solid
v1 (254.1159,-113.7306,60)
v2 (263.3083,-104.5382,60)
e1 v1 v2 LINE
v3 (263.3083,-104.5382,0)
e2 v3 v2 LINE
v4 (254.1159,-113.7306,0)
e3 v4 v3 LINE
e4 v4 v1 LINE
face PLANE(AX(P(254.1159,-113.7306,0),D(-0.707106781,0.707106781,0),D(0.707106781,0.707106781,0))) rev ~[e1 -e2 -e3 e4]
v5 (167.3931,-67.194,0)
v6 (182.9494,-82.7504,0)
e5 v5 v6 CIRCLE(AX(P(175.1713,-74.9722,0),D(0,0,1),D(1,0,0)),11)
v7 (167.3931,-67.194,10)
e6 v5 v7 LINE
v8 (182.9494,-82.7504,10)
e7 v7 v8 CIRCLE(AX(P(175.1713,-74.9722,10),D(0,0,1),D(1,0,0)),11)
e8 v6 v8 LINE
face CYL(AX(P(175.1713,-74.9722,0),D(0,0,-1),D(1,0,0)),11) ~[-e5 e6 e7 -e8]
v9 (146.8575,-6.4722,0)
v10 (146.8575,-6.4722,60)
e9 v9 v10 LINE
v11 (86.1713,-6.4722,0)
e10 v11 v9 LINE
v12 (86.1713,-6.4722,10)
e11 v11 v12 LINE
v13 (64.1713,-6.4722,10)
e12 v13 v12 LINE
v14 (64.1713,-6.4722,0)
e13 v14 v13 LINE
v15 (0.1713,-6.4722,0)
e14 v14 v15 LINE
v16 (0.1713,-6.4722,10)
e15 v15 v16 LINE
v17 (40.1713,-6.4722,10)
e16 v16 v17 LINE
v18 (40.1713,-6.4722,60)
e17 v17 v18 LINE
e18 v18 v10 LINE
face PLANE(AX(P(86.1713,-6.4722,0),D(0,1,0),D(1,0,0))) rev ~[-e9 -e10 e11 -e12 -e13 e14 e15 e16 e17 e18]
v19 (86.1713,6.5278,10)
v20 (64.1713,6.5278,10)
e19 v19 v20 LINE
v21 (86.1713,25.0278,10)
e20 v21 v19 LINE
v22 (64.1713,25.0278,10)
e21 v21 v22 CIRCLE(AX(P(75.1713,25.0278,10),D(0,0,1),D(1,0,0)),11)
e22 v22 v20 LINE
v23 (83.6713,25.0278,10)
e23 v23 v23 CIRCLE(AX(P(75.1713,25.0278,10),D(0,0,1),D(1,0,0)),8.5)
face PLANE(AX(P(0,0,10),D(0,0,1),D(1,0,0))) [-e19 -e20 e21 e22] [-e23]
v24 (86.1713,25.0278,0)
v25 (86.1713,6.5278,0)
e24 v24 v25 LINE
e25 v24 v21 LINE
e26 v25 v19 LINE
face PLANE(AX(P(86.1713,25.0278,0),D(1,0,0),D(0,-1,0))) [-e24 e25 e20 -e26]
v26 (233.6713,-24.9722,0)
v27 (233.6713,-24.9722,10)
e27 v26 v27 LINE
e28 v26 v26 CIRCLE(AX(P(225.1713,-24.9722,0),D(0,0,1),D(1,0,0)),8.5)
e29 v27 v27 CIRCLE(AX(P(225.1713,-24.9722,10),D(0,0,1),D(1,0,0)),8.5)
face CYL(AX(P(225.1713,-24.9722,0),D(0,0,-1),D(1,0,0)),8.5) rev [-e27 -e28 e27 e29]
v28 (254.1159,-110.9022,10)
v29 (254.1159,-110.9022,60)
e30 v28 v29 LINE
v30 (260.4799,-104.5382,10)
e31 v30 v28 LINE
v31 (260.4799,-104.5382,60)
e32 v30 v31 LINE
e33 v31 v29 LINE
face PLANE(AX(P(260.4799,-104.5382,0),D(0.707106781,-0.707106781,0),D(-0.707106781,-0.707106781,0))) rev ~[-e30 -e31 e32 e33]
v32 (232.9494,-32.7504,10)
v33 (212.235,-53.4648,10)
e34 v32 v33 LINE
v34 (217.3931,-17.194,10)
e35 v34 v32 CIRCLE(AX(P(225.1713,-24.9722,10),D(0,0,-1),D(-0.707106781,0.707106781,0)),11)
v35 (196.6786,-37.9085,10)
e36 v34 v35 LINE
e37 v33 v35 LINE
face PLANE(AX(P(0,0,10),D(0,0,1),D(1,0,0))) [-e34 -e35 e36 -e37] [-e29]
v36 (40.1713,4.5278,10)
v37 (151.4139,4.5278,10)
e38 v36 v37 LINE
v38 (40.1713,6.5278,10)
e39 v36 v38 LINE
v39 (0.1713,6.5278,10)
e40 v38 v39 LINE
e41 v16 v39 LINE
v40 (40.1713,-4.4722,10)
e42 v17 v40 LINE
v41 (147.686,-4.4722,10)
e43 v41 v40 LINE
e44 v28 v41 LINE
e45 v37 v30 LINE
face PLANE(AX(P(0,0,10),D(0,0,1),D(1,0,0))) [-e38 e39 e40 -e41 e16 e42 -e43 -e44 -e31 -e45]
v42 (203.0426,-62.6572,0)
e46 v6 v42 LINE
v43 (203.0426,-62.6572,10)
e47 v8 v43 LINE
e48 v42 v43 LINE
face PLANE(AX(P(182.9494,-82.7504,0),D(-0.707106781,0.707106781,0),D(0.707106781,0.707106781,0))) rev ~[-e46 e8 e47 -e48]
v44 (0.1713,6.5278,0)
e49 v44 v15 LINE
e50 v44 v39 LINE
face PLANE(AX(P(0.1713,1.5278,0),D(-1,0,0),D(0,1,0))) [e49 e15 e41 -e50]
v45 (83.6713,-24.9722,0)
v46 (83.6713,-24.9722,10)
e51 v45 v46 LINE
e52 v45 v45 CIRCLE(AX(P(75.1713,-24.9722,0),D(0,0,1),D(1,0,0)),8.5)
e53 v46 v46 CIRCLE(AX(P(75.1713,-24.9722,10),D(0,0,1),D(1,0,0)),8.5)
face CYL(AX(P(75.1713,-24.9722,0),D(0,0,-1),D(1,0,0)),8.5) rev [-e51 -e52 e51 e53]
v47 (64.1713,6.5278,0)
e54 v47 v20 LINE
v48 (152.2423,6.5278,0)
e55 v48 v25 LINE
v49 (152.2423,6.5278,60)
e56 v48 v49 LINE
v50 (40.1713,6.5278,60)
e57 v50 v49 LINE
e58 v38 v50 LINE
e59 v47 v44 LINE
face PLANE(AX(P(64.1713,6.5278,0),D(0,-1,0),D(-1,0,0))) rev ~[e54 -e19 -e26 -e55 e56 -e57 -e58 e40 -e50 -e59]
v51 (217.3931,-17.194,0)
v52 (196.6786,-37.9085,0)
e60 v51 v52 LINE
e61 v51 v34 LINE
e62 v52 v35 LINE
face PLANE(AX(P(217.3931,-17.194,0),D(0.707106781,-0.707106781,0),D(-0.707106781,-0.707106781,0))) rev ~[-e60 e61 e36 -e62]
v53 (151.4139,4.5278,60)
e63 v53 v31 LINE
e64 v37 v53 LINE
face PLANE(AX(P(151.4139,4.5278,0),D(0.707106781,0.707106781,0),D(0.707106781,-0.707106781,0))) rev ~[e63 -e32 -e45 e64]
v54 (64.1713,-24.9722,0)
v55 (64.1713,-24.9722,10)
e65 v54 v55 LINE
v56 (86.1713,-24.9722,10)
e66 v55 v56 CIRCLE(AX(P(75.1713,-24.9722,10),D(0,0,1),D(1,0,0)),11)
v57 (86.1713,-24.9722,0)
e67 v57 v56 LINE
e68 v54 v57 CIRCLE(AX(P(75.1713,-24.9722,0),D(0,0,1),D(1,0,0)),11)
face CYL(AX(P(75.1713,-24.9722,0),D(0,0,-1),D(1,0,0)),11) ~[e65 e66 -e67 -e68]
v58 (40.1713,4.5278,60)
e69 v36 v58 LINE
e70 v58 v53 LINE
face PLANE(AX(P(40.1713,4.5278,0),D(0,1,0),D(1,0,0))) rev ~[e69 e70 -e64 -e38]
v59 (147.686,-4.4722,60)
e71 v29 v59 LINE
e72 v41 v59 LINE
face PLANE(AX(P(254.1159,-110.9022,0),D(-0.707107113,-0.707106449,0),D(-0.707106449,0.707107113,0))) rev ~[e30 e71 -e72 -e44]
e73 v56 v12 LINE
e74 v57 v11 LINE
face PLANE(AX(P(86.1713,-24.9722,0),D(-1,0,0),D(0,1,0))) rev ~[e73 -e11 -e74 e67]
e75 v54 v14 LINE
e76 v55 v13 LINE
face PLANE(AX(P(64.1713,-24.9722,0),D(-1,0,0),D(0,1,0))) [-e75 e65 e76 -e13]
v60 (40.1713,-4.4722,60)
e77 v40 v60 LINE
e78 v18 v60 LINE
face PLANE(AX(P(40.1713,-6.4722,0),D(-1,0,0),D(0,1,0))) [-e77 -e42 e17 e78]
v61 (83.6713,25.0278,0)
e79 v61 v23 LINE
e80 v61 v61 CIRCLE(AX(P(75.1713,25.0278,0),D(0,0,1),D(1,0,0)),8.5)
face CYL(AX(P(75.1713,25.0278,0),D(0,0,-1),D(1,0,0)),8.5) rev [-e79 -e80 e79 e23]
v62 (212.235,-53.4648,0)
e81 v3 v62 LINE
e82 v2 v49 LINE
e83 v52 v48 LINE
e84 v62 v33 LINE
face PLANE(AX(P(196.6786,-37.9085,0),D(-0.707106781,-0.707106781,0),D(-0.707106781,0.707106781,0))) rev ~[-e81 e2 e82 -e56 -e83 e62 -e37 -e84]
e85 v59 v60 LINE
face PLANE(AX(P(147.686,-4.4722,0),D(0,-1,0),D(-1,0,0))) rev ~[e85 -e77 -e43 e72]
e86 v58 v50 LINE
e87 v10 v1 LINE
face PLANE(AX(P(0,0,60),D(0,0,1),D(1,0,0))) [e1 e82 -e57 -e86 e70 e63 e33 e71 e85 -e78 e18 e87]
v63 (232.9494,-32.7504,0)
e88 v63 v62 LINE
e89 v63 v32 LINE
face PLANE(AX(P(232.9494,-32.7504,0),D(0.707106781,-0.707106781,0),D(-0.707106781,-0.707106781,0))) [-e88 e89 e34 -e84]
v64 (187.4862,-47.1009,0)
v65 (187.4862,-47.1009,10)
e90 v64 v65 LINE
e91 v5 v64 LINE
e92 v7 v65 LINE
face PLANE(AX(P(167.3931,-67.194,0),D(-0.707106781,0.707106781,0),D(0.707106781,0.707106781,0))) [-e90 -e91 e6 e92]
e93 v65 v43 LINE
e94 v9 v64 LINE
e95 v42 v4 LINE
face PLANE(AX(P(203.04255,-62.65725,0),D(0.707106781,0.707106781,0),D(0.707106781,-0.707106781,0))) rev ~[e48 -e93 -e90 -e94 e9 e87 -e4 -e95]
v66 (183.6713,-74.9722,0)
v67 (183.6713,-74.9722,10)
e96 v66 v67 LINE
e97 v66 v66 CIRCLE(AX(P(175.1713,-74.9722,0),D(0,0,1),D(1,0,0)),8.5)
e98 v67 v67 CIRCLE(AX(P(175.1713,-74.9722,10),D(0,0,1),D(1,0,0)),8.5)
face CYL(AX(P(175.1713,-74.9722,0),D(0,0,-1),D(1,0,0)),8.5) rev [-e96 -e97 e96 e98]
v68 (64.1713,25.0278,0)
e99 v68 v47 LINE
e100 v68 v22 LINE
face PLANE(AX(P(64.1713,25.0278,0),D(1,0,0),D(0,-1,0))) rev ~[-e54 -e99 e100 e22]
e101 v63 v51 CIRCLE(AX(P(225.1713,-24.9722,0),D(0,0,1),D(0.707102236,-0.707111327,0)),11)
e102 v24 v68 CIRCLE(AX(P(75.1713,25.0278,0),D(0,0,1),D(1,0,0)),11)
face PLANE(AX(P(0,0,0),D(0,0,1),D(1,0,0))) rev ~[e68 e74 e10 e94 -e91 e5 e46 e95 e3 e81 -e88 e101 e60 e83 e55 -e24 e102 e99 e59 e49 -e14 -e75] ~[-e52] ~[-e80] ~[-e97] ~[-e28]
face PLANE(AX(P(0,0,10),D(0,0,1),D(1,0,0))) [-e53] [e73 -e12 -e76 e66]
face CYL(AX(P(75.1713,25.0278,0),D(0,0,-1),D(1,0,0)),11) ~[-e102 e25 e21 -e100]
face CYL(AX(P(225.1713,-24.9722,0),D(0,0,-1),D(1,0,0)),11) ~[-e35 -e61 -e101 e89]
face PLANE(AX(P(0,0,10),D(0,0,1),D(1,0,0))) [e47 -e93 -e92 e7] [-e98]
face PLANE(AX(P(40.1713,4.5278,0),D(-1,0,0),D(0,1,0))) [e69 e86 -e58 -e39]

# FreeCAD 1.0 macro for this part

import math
import FreeCAD as App
import Part
import Sketcher
from FreeCAD import Vector
Q = App.Units.Quantity


def add_polygon(sketch, points):
    """Adds a closed chain of lines whose ends are joined by coincident constraints."""
    first, n = sketch.GeometryCount, len(points)
    for a, b in zip(points, points[1:] + points[:1]):
        sketch.addGeometry(Part.LineSegment(App.Vector(*a, 0), App.Vector(*b, 0)), False)
    for i in range(n):
        sketch.addConstraint(Sketcher.Constraint("Coincident", first + i, 2, first + (i + 1) % n, 1))

doc = App.newDocument("Part")
body = doc.addObject("PartDesign::Body", "Body")

# Sketch on XY plane
sketch1 = body.newObject("Sketcher::SketchObject", "Sketch")
sketch1.AttachmentSupport = (doc.getObject("XY_Plane"), [""])
sketch1.MapMode = "FlatFace"
add_polygon(sketch1, [(152.2423, 6.5278), (40.1713, 6.5278), (40.1713, 4.5278), (151.4139, 4.5278), (260.4799, -104.5382), (254.1159, -110.9022), (147.686, -4.4722), (40.1713, -4.4722), (40.1713, -6.4722), (146.8575, -6.4722), (254.1159, -113.7306), (263.3083, -104.5382)])  # lines 0-11
sketch1.addConstraint([
    Sketcher.Constraint("Horizontal", 0),
    Sketcher.Constraint("Vertical", 1),
    Sketcher.Constraint("Horizontal", 2),
    Sketcher.Constraint("Horizontal", 6),
    Sketcher.Constraint("Vertical", 7),
    Sketcher.Constraint("Horizontal", 8),
    Sketcher.Constraint("Perpendicular", 3, 4),
    Sketcher.Constraint("Perpendicular", 4, 5),
    Sketcher.Constraint("Parallel", 5, 9),
    Sketcher.Constraint("Perpendicular", 9, 10),
    Sketcher.Constraint("Perpendicular", 10, 11),
    Sketcher.Constraint("Horizontal", 3, 2, 10, 2),
    Sketcher.Constraint("Vertical", 1, 2, 6, 2),
    Sketcher.Constraint("Vertical", 4, 2, 9, 2),
    Sketcher.Constraint("Equal", 1, 7),
    Sketcher.Constraint("DistanceY", 1, 2, 1, 1, 2.0),
    Sketcher.Constraint("Angle", 3, Q("-45 deg")),
    Sketcher.Constraint("Distance", 4, 9.0),
    Sketcher.Constraint("Distance", 10, 13.0),
    Sketcher.Constraint("DistanceY", 5, 2, 2, 2, 9.0),
    Sketcher.Constraint("DistanceX", 0, 2, 0, 1, 112.071),
    Sketcher.Constraint("DistanceX", -1, 1, 3, 2, 260.48),
    Sketcher.Constraint("DistanceY", 4, 2, 2, 2, 115.43),
    Sketcher.Constraint("DistanceY", -1, 1, 0, 2, 6.5278),
])
pad1 = body.newObject("PartDesign::Pad", "Pad")
pad1.Profile = sketch1
pad1.Length = 60

# Sketch on XY plane
sketch2 = body.newObject("Sketcher::SketchObject", "Sketch001")
sketch2.AttachmentSupport = (doc.getObject("XY_Plane"), [""])
sketch2.MapMode = "FlatFace"
add_polygon(sketch2, [(0.1713, 6.5278), (0.1713, -6.4722), (40.1713, -6.4722), (40.1713, -4.4722), (147.686, -4.4722), (254.1159, -110.9022), (260.4799, -104.5382), (151.4139, 4.5278), (40.1713, 4.5278), (40.1713, 6.5278)])  # lines 0-9
sketch2.addGeometry(Part.LineSegment(Vector(64.1713, 25.0278, 0), Vector(64.1713, 6.5278, 0)), False)  # 10
sketch2.addGeometry(Part.LineSegment(Vector(64.1713, 6.5278, 0), Vector(86.1713, 6.5278, 0)), False)  # 11
sketch2.addGeometry(Part.LineSegment(Vector(86.1713, 6.5278, 0), Vector(86.1713, 25.0278, 0)), False)  # 12
sketch2.addGeometry(Part.ArcOfCircle(Part.Circle(Vector(75.1713, 25.0278, 0), Vector(0, 0, 1), 11), math.radians(0), math.radians(180)), False)  # 13
sketch2.addGeometry(Part.Circle(Vector(75.1713, 25.0278, 0), Vector(0, 0, 1), 8.5), False)  # 14
sketch2.addGeometry(Part.LineSegment(Vector(86.1713, -6.4722, 0), Vector(64.1713, -6.4722, 0)), False)  # 15
sketch2.addGeometry(Part.LineSegment(Vector(64.1713, -6.4722, 0), Vector(64.1713, -24.9722, 0)), False)  # 16
sketch2.addGeometry(Part.ArcOfCircle(Part.Circle(Vector(75.1713, -24.9722, 0), Vector(0, 0, 1), 11), math.radians(180), math.radians(360)), False)  # 17
sketch2.addGeometry(Part.LineSegment(Vector(86.1713, -24.9722, 0), Vector(86.1713, -6.4722, 0)), False)  # 18
sketch2.addGeometry(Part.Circle(Vector(75.1713, -24.9722, 0), Vector(0, 0, 1), 8.5), False)  # 19
sketch2.addGeometry(Part.LineSegment(Vector(217.3931, -17.194, 0), Vector(196.6786, -37.9085, 0)), False)  # 20
sketch2.addGeometry(Part.LineSegment(Vector(196.6786, -37.9085, 0), Vector(212.23495, -53.46485, 0)), False)  # 21
sketch2.addGeometry(Part.LineSegment(Vector(212.235, -53.4648, 0), Vector(232.9494, -32.7504, 0)), False)  # 22
sketch2.addGeometry(Part.ArcOfCircle(Part.Circle(Vector(225.1713, -24.9722, 0), Vector(0, 0, 1), 11), math.radians(-45.000368), math.radians(135)), False)  # 23
sketch2.addGeometry(Part.Circle(Vector(225.1713, -24.9722, 0), Vector(0, 0, 1), 8.5), False)  # 24
sketch2.addGeometry(Part.LineSegment(Vector(203.04255, -62.65725, 0), Vector(187.4862, -47.1009, 0)), False)  # 25
sketch2.addGeometry(Part.LineSegment(Vector(187.4862, -47.1009, 0), Vector(167.3931, -67.194, 0)), False)  # 26
sketch2.addGeometry(Part.ArcOfCircle(Part.Circle(Vector(175.1713, -74.9722, 0), Vector(0, 0, 1), 11), math.radians(135), math.radians(314.999632)), False)  # 27
sketch2.addGeometry(Part.LineSegment(Vector(182.9494, -82.7504, 0), Vector(203.0426, -62.6572, 0)), False)  # 28
sketch2.addGeometry(Part.Circle(Vector(175.1713, -74.9722, 0), Vector(0, 0, 1), 8.5), False)  # 29
sketch2.addConstraint([
    Sketcher.Constraint("Coincident", 10, 2, 11, 1),
    Sketcher.Constraint("Coincident", 11, 2, 12, 1),
    Sketcher.Constraint("Tangent", 12, 2, 13, 1),
    Sketcher.Constraint("Tangent", 13, 2, 10, 1),
    Sketcher.Constraint("Coincident", 15, 2, 16, 1),
    Sketcher.Constraint("Tangent", 16, 2, 17, 1),
    Sketcher.Constraint("Tangent", 17, 2, 18, 1),
    Sketcher.Constraint("Coincident", 18, 2, 15, 1),
    Sketcher.Constraint("Coincident", 20, 2, 21, 1),
    Sketcher.Constraint("Coincident", 21, 2, 22, 1),
    Sketcher.Constraint("Tangent", 22, 2, 23, 1),
    Sketcher.Constraint("Tangent", 23, 2, 20, 1),
    Sketcher.Constraint("Coincident", 25, 2, 26, 1),
    Sketcher.Constraint("Tangent", 26, 2, 27, 1),
    Sketcher.Constraint("Tangent", 27, 2, 28, 1),
    Sketcher.Constraint("Coincident", 28, 2, 25, 1),
    Sketcher.Constraint("Vertical", 0),
    Sketcher.Constraint("Horizontal", 1),
    Sketcher.Constraint("Vertical", 2),
    Sketcher.Constraint("Horizontal", 3),
    Sketcher.Constraint("Horizontal", 7),
    Sketcher.Constraint("Vertical", 8),
    Sketcher.Constraint("Horizontal", 9),
    Sketcher.Constraint("Vertical", 10),
    Sketcher.Constraint("Horizontal", 11),
    Sketcher.Constraint("Vertical", 12),
    Sketcher.Constraint("Horizontal", 15),
    Sketcher.Constraint("Vertical", 16),
    Sketcher.Constraint("Vertical", 18),
    Sketcher.Constraint("Coincident", 14, 3, 13, 3),
    Sketcher.Constraint("Coincident", 19, 3, 17, 3),
    Sketcher.Constraint("Coincident", 24, 3, 23, 3),
    Sketcher.Constraint("Coincident", 29, 3, 27, 3),
    Sketcher.Constraint("Equal", 13, 17),
    Sketcher.Constraint("Equal", 14, 19),
    Sketcher.Constraint("Equal", 17, 23),
    Sketcher.Constraint("Equal", 19, 24),
    Sketcher.Constraint("Equal", 23, 27),
    Sketcher.Constraint("Equal", 24, 29),
    Sketcher.Constraint("Perpendicular", 4, 5),
    Sketcher.Constraint("Perpendicular", 5, 6),
    Sketcher.Constraint("Perpendicular", 6, 20),
    Sketcher.Constraint("Perpendicular", 20, 21),
    Sketcher.Constraint("Perpendicular", 21, 22),
    Sketcher.Constraint("Perpendicular", 22, 25),
    Sketcher.Constraint("Perpendicular", 25, 26),
    Sketcher.Constraint("Parallel", 26, 28),
    Sketcher.Constraint("Horizontal", 19, 3, 23, 3),
    Sketcher.Constraint("Horizontal", 9, 2, 10, 2),
    Sketcher.Constraint("Horizontal", 1, 2, 15, 2),
    Sketcher.Constraint("Vertical", 14, 3, 17, 3),
    Sketcher.Constraint("Vertical", 2, 2, 7, 2),
    Sketcher.Constraint("Equal", 2, 8),
    Sketcher.Constraint("Equal", 12, 16),
    Sketcher.Constraint("Diameter", 14, 17.0),
    Sketcher.Constraint("Radius", 13, 11.0),
    Sketcher.Constraint("DistanceX", 1, 1, 1, 2, 40.0),
    Sketcher.Constraint("DistanceY", 0, 2, 0, 1, 13.0),
    Sketcher.Constraint("DistanceY", 2, 1, 2, 2, 2.0),
    Sketcher.Constraint("Angle", 4, Q("-45 deg")),
    Sketcher.Constraint("Distance", 5, 9.0),
    Sketcher.Constraint("DistanceY", 10, 2, 10, 1, 18.5),
    Sketcher.Constraint("DistanceX", 17, 3, 23, 3, 150.0),
    Sketcher.Constraint("DistanceX", 27, 3, 23, 3, 50.0),
    Sketcher.Constraint("DistanceY", 27, 3, 23, 3, 50.0),
    Sketcher.Constraint("DistanceX", 0, 2, 17, 3, 75.0),
    Sketcher.Constraint("DistanceX", -1, 1, 5, 2, 260.48),
    Sketcher.Constraint("DistanceY", 4, 2, 27, 3, 35.93),
    Sketcher.Constraint("Distance", 26, 28.416),
    Sketcher.Constraint("DistanceX", 3, 1, 3, 2, 107.5147),
    Sketcher.Constraint("DistanceX", -1, 1, 21, 2, 212.235),
    Sketcher.Constraint("DistanceY", 23, 2, -1, 1, 17.194),
])
pad2 = body.newObject("PartDesign::Pad", "Pad001")
pad2.Profile = sketch2
pad2.Length = 10

doc.recompute()
